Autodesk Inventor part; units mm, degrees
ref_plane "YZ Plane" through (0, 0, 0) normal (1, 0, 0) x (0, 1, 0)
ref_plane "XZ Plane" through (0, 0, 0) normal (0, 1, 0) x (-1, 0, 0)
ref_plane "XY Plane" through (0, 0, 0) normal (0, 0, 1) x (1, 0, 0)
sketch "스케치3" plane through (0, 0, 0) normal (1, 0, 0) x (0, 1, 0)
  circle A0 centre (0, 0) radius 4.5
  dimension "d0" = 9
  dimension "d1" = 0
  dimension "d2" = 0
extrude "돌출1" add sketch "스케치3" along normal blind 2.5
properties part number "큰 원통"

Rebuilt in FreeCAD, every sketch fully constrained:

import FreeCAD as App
import Part
import Sketcher
from FreeCAD import Vector
Q = App.Units.Quantity

doc = App.newDocument("Part")
params = doc.addObject("Spreadsheet::Sheet", "Params")
for row, (alias, value) in enumerate([
    ("sketch1_diameter", "9 mm"),
    ("pad1_length", "2.5 mm"),
], start=1):
    params.set(f"A{row}", alias)
    params.set(f"B{row}", "=" + value)
    params.setAlias(f"B{row}", alias)

body = doc.addObject("PartDesign::Body", "Body")

sketch1 = doc.addObject("Sketcher::SketchObject", "Sketch")
body.addObject(sketch1)
sketch1.AttachmentSupport = (doc.YZ_Plane, [""])
sketch1.MapMode = "FlatFace"
sketch1.addGeometry(Part.Circle(Vector(0, 0, 0), Vector(0, 0, 1), 4.5), False)
sketch1.addConstraint([
    Sketcher.Constraint("Coincident", 0, 3, -1, 1),
    Sketcher.Constraint("Diameter", 0, Q("9 mm")),
])
sketch1.setExpression("Constraints[1]", "Params.sketch1_diameter")
pad1 = doc.addObject("PartDesign::Pad", "Pad")
body.addObject(pad1)
pad1.Profile = sketch1
pad1.setExpression("Length", "Params.pad1_length")

doc.recompute()
